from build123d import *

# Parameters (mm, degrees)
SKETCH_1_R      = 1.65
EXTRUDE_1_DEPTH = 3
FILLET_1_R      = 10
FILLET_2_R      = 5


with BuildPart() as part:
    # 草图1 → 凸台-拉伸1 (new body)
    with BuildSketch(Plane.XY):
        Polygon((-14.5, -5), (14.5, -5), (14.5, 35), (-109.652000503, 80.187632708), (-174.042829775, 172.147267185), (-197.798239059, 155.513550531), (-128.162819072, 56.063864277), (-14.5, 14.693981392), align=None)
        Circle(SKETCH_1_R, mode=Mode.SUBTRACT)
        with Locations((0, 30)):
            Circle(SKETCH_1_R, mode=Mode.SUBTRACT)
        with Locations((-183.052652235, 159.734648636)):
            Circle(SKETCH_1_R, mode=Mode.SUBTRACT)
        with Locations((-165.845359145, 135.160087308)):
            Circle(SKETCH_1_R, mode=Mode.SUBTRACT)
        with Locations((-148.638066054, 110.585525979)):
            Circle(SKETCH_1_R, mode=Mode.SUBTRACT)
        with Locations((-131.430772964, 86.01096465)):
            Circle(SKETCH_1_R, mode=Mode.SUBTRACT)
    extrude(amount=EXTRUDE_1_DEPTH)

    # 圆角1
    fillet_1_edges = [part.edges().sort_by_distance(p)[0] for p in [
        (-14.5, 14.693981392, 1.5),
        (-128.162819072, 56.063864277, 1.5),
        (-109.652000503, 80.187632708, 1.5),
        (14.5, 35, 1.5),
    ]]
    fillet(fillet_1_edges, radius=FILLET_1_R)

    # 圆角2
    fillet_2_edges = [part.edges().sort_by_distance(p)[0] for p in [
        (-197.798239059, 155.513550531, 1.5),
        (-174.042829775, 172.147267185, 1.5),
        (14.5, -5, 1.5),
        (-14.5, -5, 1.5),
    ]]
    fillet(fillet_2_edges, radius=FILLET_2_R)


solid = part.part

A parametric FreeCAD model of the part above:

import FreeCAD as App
import Part
import Sketcher

V = App.Vector
Q = App.Units.Quantity


def edges_at(feature, points):
    """Names of the edges that pass closest to the given points."""
    edges = feature.Shape.Edges
    near = lambda p: min(range(len(edges)), key=lambda i: edges[i].distToShape(Part.Vertex(*p))[0])
    return sorted({f"Edge{near(p) + 1}" for p in points})


def add_polygon(sketch, points):
    """Adds a closed chain of lines whose ends are joined by coincident constraints."""
    first, n = sketch.GeometryCount, len(points)
    for a, b in zip(points, points[1:] + points[:1]):
        sketch.addGeometry(Part.LineSegment(App.Vector(*a, 0), App.Vector(*b, 0)), False)
    for i in range(n):
        sketch.addConstraint(Sketcher.Constraint("Coincident", first + i, 2, first + (i + 1) % n, 1))

doc = App.newDocument("Part")
params = doc.addObject("Spreadsheet::Sheet", "Params")
for row, (alias, value) in enumerate([
    ("sketch1_diameter", "3.3 mm"),
    ("sketch1_width", "29 mm"),
    ("sketch1_height", "40 mm"),
    ("sketch1_length", "29 mm"),
    ("pad1_length", "3 mm"),
    ("fillet_radius", "10 mm"),
    ("fillet2_radius", "5 mm"),
], start=1):
    params.set(f"A{row}", alias)
    params.set(f"B{row}", "=" + value)
    params.setAlias(f"B{row}", alias)

body = doc.addObject("PartDesign::Body", "Body")

# Sketch on XY plane
sketch1 = body.newObject("Sketcher::SketchObject", "Sketch")
sketch1.AttachmentSupport = (doc.getObject("XY_Plane"), [""])
sketch1.MapMode = "FlatFace"
add_polygon(sketch1, [(-14.5, -5), (14.5, -5), (14.5, 35), (-109.7, 80.2), (-174, 172.1), (-197.8, 155.5), (-128.2, 56.1), (-14.5, 14.7)])  # lines 0-7
sketch1.addGeometry(Part.Circle(V(0, 0, 0), V(0, 0, 1), 1.6), False)  # 8
sketch1.addGeometry(Part.Circle(V(0, 30, 0), V(0, 0, 1), 1.6), False)  # 9
sketch1.addGeometry(Part.Circle(V(-148.6, 110.6, 0), V(0, 0, 1), 1.6), False)  # 10
sketch1.addGeometry(Part.Circle(V(-131.4, 86, 0), V(0, 0, 1), 1.6), False)  # 11
sketch1.addGeometry(Part.Circle(V(-165.8, 135.2, 0), V(0, 0, 1), 1.6), False)  # 12
sketch1.addGeometry(Part.Circle(V(-183.1, 159.7, 0), V(0, 0, 1), 1.6), False)  # 13
sketch1.addConstraint([
    Sketcher.Constraint("Horizontal", 0),
    Sketcher.Constraint("Vertical", 1),
    Sketcher.Constraint("Vertical", 7),
    Sketcher.Constraint("Coincident", 8, 3, -1, 1),
    Sketcher.Constraint("Equal", 8, 9),
    Sketcher.Constraint("Equal", 9, 10),
    Sketcher.Constraint("Equal", 10, 11),
    Sketcher.Constraint("Equal", 11, 12),
    Sketcher.Constraint("Equal", 12, 13),
    Sketcher.Constraint("PointOnObject", 9, 3, -2),
    Sketcher.Constraint("Perpendicular", 3, 4),
    Sketcher.Constraint("Perpendicular", 4, 5),
    Sketcher.Constraint("Parallel", 2, 6),
    Sketcher.Constraint("Diameter", 8, 3.3),
    Sketcher.Constraint("DistanceX", 0, 1, 0, 2, 29.0),
    Sketcher.Constraint("DistanceY", 1, 1, 1, 2, 40.0),
    Sketcher.Constraint("Angle", 2, Q("160 deg")),
    Sketcher.Constraint("Angle", 3, Q("125 deg")),
    Sketcher.Constraint("Distance", 4, 29.0),
    Sketcher.Constraint("DistanceY", -1, 1, 9, 3, 30.0),
    Sketcher.Constraint("DistanceY", 0, 2, -1, 1, 5.0),
    Sketcher.Constraint("DistanceX", -1, 1, 0, 2, 14.5),
    Sketcher.Constraint("DistanceX", 2, 2, -1, 1, 109.652001),
    Sketcher.Constraint("DistanceY", 7, 2, 7, 1, 19.693981),
    Sketcher.Constraint("DistanceY", 4, 2, 13, 3, 4.221098),
    Sketcher.Constraint("DistanceY", 5, 2, 11, 3, 29.9471),
    Sketcher.Constraint("Distance", 5, 121.40565),
    Sketcher.Constraint("DistanceX", 12, 3, -1, 1, 165.845359),
    Sketcher.Constraint("DistanceY", 11, 3, 10, 3, 24.574561),
    Sketcher.Constraint("DistanceY", 10, 3, 12, 3, 24.574561),
    Sketcher.Constraint("DistanceX", 13, 3, 11, 3, 51.621879),
    Sketcher.Constraint("DistanceX", 13, 3, 2, 2, 73.400652),
    Sketcher.Constraint("DistanceX", 10, 3, -1, 1, 148.638066),
])
sketch1.setExpression("Constraints[21]", "Params.sketch1_diameter")
sketch1.setExpression("Constraints[22]", "Params.sketch1_width")
sketch1.setExpression("Constraints[23]", "Params.sketch1_height")
sketch1.setExpression("Constraints[26]", "Params.sketch1_length")
pad1 = body.newObject("PartDesign::Pad", "Pad")
pad1.Profile = sketch1
pad1.setExpression("Length", "Params.pad1_length")
doc.recompute()

fillet = body.newObject("PartDesign::Fillet", "Fillet")
fillet.Base = (pad1, edges_at(pad1, [
    (-14.5, 14.694, 1.5),
    (-128.163, 56.064, 1.5),
    (-109.652, 80.188, 1.5),
    (14.5, 35, 1.5),
]))
fillet.setExpression("Radius", "Params.fillet_radius")
doc.recompute()

fillet2 = body.newObject("PartDesign::Fillet", "Fillet001")
fillet2.Base = (fillet, edges_at(fillet, [
    (-197.798, 155.514, 1.5),
    (-174.043, 172.147, 1.5),
    (14.5, -5, 1.5),
    (-14.5, -5, 1.5),
]))
fillet2.setExpression("Radius", "Params.fillet2_radius")

doc.recompute()
